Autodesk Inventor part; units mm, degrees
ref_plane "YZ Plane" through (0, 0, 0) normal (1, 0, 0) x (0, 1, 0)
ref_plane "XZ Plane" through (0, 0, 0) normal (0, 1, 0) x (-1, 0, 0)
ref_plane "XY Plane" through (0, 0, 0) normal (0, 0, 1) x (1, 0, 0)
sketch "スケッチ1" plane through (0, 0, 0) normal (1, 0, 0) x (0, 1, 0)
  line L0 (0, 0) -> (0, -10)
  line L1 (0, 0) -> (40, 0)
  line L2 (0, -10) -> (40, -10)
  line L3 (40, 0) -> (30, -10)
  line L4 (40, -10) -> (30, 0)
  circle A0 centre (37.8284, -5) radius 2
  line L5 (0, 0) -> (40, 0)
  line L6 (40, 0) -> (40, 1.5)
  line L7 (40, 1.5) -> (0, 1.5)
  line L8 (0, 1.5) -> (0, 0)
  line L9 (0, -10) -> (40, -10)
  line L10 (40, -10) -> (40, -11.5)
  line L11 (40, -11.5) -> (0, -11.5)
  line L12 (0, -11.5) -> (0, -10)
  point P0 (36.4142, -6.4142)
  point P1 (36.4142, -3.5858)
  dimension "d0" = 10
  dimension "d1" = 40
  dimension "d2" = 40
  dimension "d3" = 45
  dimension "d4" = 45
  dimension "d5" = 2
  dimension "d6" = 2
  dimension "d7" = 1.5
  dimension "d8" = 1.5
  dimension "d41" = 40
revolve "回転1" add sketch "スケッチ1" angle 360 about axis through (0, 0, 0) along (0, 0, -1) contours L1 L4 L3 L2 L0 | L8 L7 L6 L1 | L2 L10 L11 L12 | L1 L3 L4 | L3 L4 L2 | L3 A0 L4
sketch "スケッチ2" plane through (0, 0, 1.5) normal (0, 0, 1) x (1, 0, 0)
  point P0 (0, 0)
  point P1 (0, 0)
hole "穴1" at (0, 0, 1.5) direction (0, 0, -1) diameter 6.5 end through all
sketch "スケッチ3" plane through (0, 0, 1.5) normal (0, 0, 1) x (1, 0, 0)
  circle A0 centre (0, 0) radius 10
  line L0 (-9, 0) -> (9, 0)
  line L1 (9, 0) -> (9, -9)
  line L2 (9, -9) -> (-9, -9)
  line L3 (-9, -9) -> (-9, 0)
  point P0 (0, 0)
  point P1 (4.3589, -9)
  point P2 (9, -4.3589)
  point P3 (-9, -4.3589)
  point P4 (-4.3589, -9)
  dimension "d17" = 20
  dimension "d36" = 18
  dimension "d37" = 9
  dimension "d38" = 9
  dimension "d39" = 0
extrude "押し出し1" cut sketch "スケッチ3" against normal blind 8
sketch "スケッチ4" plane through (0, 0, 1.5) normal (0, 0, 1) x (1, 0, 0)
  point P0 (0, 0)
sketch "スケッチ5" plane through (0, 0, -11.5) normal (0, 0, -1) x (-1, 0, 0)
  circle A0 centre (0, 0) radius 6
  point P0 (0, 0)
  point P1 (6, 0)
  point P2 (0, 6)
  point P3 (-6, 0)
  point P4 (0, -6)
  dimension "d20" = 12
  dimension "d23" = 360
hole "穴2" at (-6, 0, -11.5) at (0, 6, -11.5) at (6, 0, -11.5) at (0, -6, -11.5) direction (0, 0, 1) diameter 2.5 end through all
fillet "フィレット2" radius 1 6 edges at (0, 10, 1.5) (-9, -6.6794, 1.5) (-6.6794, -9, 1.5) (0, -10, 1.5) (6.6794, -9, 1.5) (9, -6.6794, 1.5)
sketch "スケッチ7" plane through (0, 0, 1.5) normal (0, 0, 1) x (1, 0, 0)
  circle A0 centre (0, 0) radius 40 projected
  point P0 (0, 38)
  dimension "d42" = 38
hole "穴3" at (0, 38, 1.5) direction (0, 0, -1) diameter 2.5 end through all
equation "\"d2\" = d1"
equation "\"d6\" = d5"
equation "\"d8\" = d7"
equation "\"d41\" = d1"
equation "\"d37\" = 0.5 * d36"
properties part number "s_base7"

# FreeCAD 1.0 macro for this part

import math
import FreeCAD as App
import Part
import Sketcher
from FreeCAD import Vector


def edges_at(feature, points):
    """Names of the edges that pass closest to the given points."""
    edges = feature.Shape.Edges
    near = lambda p: min(range(len(edges)), key=lambda i: edges[i].distToShape(Part.Vertex(*p))[0])
    return sorted({f"Edge{near(p) + 1}" for p in points})

doc = App.newDocument("Part")
body = doc.addObject("PartDesign::Body", "Body")

sketch1 = doc.addObject("Sketcher::SketchObject", "Sketch")
body.addObject(sketch1)
sketch1.AttachmentSupport = (doc.YZ_Plane, [""])
sketch1.MapMode = "FlatFace"
sketch1.addGeometry(Part.LineSegment(Vector(0, -11.5, 0), Vector(40, -11.5, 0)), False)
sketch1.addGeometry(Part.LineSegment(Vector(40, -11.5, 0), Vector(40, -10, 0)), False)
sketch1.addGeometry(Part.LineSegment(Vector(40, -10, 0), Vector(36.4, -6.4, 0)), False)
sketch1.addGeometry(Part.ArcOfCircle(Part.Circle(Vector(37.8, -5, 0), Vector(0, 0, 1), 2), math.radians(135), math.radians(225)), False)
sketch1.addGeometry(Part.LineSegment(Vector(36.4, -3.6, 0), Vector(40, 0, 0)), False)
sketch1.addGeometry(Part.LineSegment(Vector(40, 0, 0), Vector(40, 1.5, 0)), False)
sketch1.addGeometry(Part.LineSegment(Vector(40, 1.5, 0), Vector(0, 1.5, 0)), False)
sketch1.addGeometry(Part.LineSegment(Vector(0, 1.5, 0), Vector(0, -11.5, 0)), False)
sketch1.addConstraint(Sketcher.Constraint("Coincident", 0, 2, 1, 1))
sketch1.addConstraint(Sketcher.Constraint("Coincident", 1, 2, 2, 1))
sketch1.addConstraint(Sketcher.Constraint("Tangent", 2, 2, 3, 2))
sketch1.addConstraint(Sketcher.Constraint("Tangent", 3, 1, 4, 1))
sketch1.addConstraint(Sketcher.Constraint("Coincident", 4, 2, 5, 1))
sketch1.addConstraint(Sketcher.Constraint("Coincident", 5, 2, 6, 1))
sketch1.addConstraint(Sketcher.Constraint("Coincident", 6, 2, 7, 1))
sketch1.addConstraint(Sketcher.Constraint("Coincident", 7, 2, 0, 1))
sketch1.addConstraint(Sketcher.Constraint("Horizontal", 0))
sketch1.addConstraint(Sketcher.Constraint("Vertical", 1))
sketch1.addConstraint(Sketcher.Constraint("Vertical", 5))
sketch1.addConstraint(Sketcher.Constraint("Horizontal", 6))
sketch1.addConstraint(Sketcher.Constraint("Vertical", 7))
sketch1.addConstraint(Sketcher.Constraint("PointOnObject", 4, 2, -1))
sketch1.addConstraint(Sketcher.Constraint("PointOnObject", 6, 2, -2))
sketch1.addConstraint(Sketcher.Constraint("Perpendicular", 2, 4))
sketch1.addConstraint(Sketcher.Constraint("Vertical", 2, 2, 3, 1))
sketch1.addConstraint(Sketcher.Constraint("Vertical", 1, 2, 4, 2))
sketch1.addConstraint(Sketcher.Constraint("Equal", 1, 5))
sketch1.addConstraint(Sketcher.Constraint("Radius", 3, 2.0))
sketch1.addConstraint(Sketcher.Constraint("DistanceX", 0, 1, 0, 2, 40.0))
sketch1.addConstraint(Sketcher.Constraint("DistanceY", 1, 1, 1, 2, 1.5))
sketch1.addConstraint(Sketcher.Constraint("DistanceY", 1, 2, -1, 1, 10.0))
revolution = doc.addObject("PartDesign::Revolution", "Revolution")
body.addObject(revolution)
revolution.Profile = sketch1
revolution.ReferenceAxis = (sketch1, ["V_Axis"])
revolution.Angle = 360

sketch2 = doc.addObject("Sketcher::SketchObject", "Sketch001")
body.addObject(sketch2)
sketch2.AttachmentSupport = (doc.XY_Plane, [""])
sketch2.MapMode = "FlatFace"
sketch2.AttachmentOffset = App.Placement(Vector(0, 0, 1.5), App.Rotation())
sketch2.addGeometry(Part.Circle(Vector(0, 0, 0), Vector(0, 0, 1), 3.2), False)
sketch2.addConstraint(Sketcher.Constraint("Coincident", 0, 3, -1, 1))
sketch2.addConstraint(Sketcher.Constraint("Diameter", 0, 6.5))
doc.recompute()
hole = doc.addObject("PartDesign::Hole", "Hole")
body.addObject(hole)
hole.Profile = sketch2
hole.ThreadType = "None"
hole.Diameter = 6.5
hole.DepthType = "ThroughAll"

sketch3 = doc.addObject("Sketcher::SketchObject", "Sketch002")
body.addObject(sketch3)
sketch3.AttachmentSupport = (doc.XY_Plane, [""])
sketch3.MapMode = "FlatFace"
sketch3.AttachmentOffset = App.Placement(Vector(0, 0, 1.5), App.Rotation())
sketch3.addGeometry(Part.ArcOfCircle(Part.Circle(Vector(0, 0, 0), Vector(0, 0, 1), 10), math.radians(-26), math.radians(206)), False)
sketch3.addGeometry(Part.LineSegment(Vector(-9, -4.4, 0), Vector(-9, -9, 0)), False)
sketch3.addGeometry(Part.LineSegment(Vector(-9, -9, 0), Vector(-4.4, -9, 0)), False)
sketch3.addGeometry(Part.ArcOfCircle(Part.Circle(Vector(0, 0, 0), Vector(0, 0, 1), 10), math.radians(-116), math.radians(-64)), False)
sketch3.addGeometry(Part.LineSegment(Vector(4.4, -9, 0), Vector(9, -9, 0)), False)
sketch3.addGeometry(Part.LineSegment(Vector(9, -9, 0), Vector(9, -4.4, 0)), False)
sketch3.addConstraint(Sketcher.Constraint("Coincident", 0, 2, 1, 1))
sketch3.addConstraint(Sketcher.Constraint("Coincident", 1, 2, 2, 1))
sketch3.addConstraint(Sketcher.Constraint("Coincident", 2, 2, 3, 1))
sketch3.addConstraint(Sketcher.Constraint("Coincident", 3, 2, 4, 1))
sketch3.addConstraint(Sketcher.Constraint("Coincident", 4, 2, 5, 1))
sketch3.addConstraint(Sketcher.Constraint("Coincident", 5, 2, 0, 1))
sketch3.addConstraint(Sketcher.Constraint("Vertical", 1))
sketch3.addConstraint(Sketcher.Constraint("Horizontal", 2))
sketch3.addConstraint(Sketcher.Constraint("Horizontal", 4))
sketch3.addConstraint(Sketcher.Constraint("Vertical", 5))
sketch3.addConstraint(Sketcher.Constraint("Coincident", 0, 3, -1, 1))
sketch3.addConstraint(Sketcher.Constraint("Coincident", 3, 3, -1, 1))
sketch3.addConstraint(Sketcher.Constraint("Equal", 0, 3))
sketch3.addConstraint(Sketcher.Constraint("Symmetric", 1, 2, 4, 2, -2))
sketch3.addConstraint(Sketcher.Constraint("Equal", 4, 1))
sketch3.addConstraint(Sketcher.Constraint("Radius", 0, 10.0))
sketch3.addConstraint(Sketcher.Constraint("DistanceX", 0, 2, -1, 1, 9.0))
pocket1 = doc.addObject("PartDesign::Pocket", "Pocket")
body.addObject(pocket1)
pocket1.Profile = sketch3
pocket1.Length = 8

sketch4 = doc.addObject("Sketcher::SketchObject", "Sketch003")
body.addObject(sketch4)
sketch4.AttachmentSupport = (doc.XY_Plane, [""])
sketch4.MapMode = "FlatFace"
sketch4.AttachmentOffset = App.Placement(Vector(0, 0, -11.5), App.Rotation())
sketch4.addGeometry(Part.Circle(Vector(-6, 0, 0), Vector(0, 0, 1), 1.2), False)
sketch4.addGeometry(Part.Circle(Vector(0, 6, 0), Vector(0, 0, 1), 1.2), False)
sketch4.addGeometry(Part.Circle(Vector(6, 0, 0), Vector(0, 0, 1), 1.2), False)
sketch4.addGeometry(Part.Circle(Vector(0, -6, 0), Vector(0, 0, 1), 1.2), False)
sketch4.addConstraint(Sketcher.Constraint("Equal", 0, 1))
sketch4.addConstraint(Sketcher.Constraint("Equal", 1, 2))
sketch4.addConstraint(Sketcher.Constraint("Equal", 2, 3))
sketch4.addConstraint(Sketcher.Constraint("Symmetric", 0, 3, 2, 3, -1, 1))
sketch4.addConstraint(Sketcher.Constraint("Symmetric", 1, 3, 3, 3, -1, 1))
sketch4.addConstraint(Sketcher.Constraint("PointOnObject", 0, 3, -1))
sketch4.addConstraint(Sketcher.Constraint("PointOnObject", 1, 3, -2))
sketch4.addConstraint(Sketcher.Constraint("Diameter", 0, 2.5))
sketch4.addConstraint(Sketcher.Constraint("DistanceX", 0, 3, -1, 1, 6.0))
sketch4.addConstraint(Sketcher.Constraint("DistanceY", -1, 1, 1, 3, 6.0))
doc.recompute()
hole2 = doc.addObject("PartDesign::Hole", "Hole001")
body.addObject(hole2)
hole2.Profile = sketch4
hole2.ThreadType = "None"
hole2.Diameter = 2.5
hole2.DepthType = "ThroughAll"
hole2.Reversed = True
doc.recompute()

fillet = doc.addObject("PartDesign::Fillet", "Fillet")
body.addObject(fillet)
fillet.Base = (hole2, edges_at(hole2, [
    (0, 10, 1.5),
    (-9, -6.679, 1.5),
    (-6.679, -9, 1.5),
    (0, -10, 1.5),
    (6.679, -9, 1.5),
    (9, -6.679, 1.5),
]))
fillet.Radius = 1

sketch5 = doc.addObject("Sketcher::SketchObject", "Sketch004")
body.addObject(sketch5)
sketch5.AttachmentSupport = (doc.XY_Plane, [""])
sketch5.MapMode = "FlatFace"
sketch5.AttachmentOffset = App.Placement(Vector(0, 0, 1.5), App.Rotation())
sketch5.addGeometry(Part.Circle(Vector(0, 38, 0), Vector(0, 0, 1), 1.2), False)
sketch5.addConstraint(Sketcher.Constraint("PointOnObject", 0, 3, -2))
sketch5.addConstraint(Sketcher.Constraint("Diameter", 0, 2.5))
sketch5.addConstraint(Sketcher.Constraint("DistanceY", -1, 1, 0, 3, 38.0))
doc.recompute()
hole3 = doc.addObject("PartDesign::Hole", "Hole002")
body.addObject(hole3)
hole3.Profile = sketch5
hole3.ThreadType = "None"
hole3.Diameter = 2.5
hole3.DepthType = "ThroughAll"

doc.recompute()
